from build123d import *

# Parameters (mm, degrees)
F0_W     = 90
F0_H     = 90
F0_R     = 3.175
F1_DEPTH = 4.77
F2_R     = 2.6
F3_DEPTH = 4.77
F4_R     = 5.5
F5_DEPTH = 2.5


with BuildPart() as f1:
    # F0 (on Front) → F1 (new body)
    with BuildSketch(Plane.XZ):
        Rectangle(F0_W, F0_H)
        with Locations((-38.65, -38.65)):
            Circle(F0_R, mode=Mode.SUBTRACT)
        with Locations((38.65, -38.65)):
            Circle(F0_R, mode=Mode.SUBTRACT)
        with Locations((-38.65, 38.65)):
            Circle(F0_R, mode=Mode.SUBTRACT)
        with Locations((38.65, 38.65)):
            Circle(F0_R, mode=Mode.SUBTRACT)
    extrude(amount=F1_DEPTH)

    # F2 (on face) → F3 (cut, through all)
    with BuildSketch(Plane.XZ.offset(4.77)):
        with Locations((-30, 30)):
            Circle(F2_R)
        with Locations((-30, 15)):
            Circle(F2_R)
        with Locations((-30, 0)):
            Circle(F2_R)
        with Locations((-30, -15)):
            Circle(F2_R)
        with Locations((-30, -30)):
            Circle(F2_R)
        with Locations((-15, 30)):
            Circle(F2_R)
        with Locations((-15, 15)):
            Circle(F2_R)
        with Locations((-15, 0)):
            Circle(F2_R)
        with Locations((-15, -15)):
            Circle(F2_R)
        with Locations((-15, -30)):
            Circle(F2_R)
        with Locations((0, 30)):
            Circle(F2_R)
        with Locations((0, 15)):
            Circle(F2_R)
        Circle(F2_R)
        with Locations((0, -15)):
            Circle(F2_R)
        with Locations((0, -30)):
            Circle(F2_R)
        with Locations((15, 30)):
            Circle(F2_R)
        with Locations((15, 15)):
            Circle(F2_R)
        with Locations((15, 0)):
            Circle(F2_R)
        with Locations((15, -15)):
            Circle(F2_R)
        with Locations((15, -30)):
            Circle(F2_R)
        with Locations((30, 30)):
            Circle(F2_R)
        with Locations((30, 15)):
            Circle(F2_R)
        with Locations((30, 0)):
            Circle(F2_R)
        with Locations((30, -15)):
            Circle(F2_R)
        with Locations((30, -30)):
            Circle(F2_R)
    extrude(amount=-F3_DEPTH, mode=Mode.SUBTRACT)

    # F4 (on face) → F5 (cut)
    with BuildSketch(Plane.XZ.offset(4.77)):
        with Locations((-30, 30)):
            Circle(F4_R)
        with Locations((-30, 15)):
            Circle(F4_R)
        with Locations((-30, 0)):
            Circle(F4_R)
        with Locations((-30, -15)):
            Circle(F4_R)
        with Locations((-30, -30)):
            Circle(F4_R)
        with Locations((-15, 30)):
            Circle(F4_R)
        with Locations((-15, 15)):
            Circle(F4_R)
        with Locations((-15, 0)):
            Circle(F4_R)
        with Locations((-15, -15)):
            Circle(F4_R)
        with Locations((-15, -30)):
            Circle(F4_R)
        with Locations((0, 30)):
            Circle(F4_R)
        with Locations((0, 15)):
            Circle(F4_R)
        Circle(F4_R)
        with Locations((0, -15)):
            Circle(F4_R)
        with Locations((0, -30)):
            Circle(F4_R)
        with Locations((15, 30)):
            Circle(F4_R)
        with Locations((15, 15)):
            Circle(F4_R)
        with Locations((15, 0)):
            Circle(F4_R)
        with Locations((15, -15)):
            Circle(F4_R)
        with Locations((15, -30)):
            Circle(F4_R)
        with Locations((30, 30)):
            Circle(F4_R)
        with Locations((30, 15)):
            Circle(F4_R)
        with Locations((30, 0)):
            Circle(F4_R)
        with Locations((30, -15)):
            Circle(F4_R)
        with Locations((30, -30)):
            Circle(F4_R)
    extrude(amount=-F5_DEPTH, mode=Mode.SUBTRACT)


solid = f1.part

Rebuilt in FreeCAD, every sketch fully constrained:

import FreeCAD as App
import Part
import Sketcher

V = App.Vector

doc = App.newDocument("Part")
params = doc.addObject("Spreadsheet::Sheet", "Params")
for row, (alias, value) in enumerate([
    ("sketch1_diameter", "6.35 mm"),
    ("sketch1_width", "90 mm"),
    ("pad1_length", "4.77 mm"),
    ("sketch2_diameter", "5.2 mm"),
    ("sketch3_diameter", "11 mm"),
    ("pocket2_length", "2.5 mm"),
], start=1):
    params.set(f"A{row}", alias)
    params.set(f"B{row}", "=" + value)
    params.setAlias(f"B{row}", alias)

body = doc.addObject("PartDesign::Body", "Body")

# Sketch on XZ plane
sketch1 = body.newObject("Sketcher::SketchObject", "Sketch")
sketch1.AttachmentSupport = (doc.getObject("XZ_Plane"), [""])
sketch1.MapMode = "FlatFace"
sketch1.addGeometry(Part.LineSegment(V(-45, 45, 0), V(-45, -45, 0)), False)
sketch1.addGeometry(Part.LineSegment(V(-45, -45, 0), V(45, -45, 0)), False)
sketch1.addGeometry(Part.LineSegment(V(45, -45, 0), V(45, 45, 0)), False)
sketch1.addGeometry(Part.LineSegment(V(45, 45, 0), V(-45, 45, 0)), False)
sketch1.addGeometry(Part.Circle(V(-38.6, -38.6, 0), V(0, 0, 1), 3.2), False)
sketch1.addGeometry(Part.Circle(V(38.6, -38.6, 0), V(0, 0, 1), 3.2), False)
sketch1.addGeometry(Part.Circle(V(-38.6, 38.6, 0), V(0, 0, 1), 3.2), False)
sketch1.addGeometry(Part.Circle(V(38.6, 38.6, 0), V(0, 0, 1), 3.2), False)
sketch1.addConstraint(Sketcher.Constraint("Coincident", 0, 2, 1, 1))
sketch1.addConstraint(Sketcher.Constraint("Coincident", 1, 2, 2, 1))
sketch1.addConstraint(Sketcher.Constraint("Coincident", 2, 2, 3, 1))
sketch1.addConstraint(Sketcher.Constraint("Coincident", 3, 2, 0, 1))
sketch1.addConstraint(Sketcher.Constraint("Vertical", 0))
sketch1.addConstraint(Sketcher.Constraint("Horizontal", 1))
sketch1.addConstraint(Sketcher.Constraint("Vertical", 2))
sketch1.addConstraint(Sketcher.Constraint("Horizontal", 3))
sketch1.addConstraint(Sketcher.Constraint("Equal", 4, 5))
sketch1.addConstraint(Sketcher.Constraint("Equal", 5, 6))
sketch1.addConstraint(Sketcher.Constraint("Equal", 6, 7))
sketch1.addConstraint(Sketcher.Constraint("Symmetric", 5, 3, 6, 3, -1, 1))
sketch1.addConstraint(Sketcher.Constraint("Symmetric", 4, 3, 7, 3, -1, 1))
sketch1.addConstraint(Sketcher.Constraint("Symmetric", 0, 2, 2, 2, -1, 1))
sketch1.addConstraint(Sketcher.Constraint("Symmetric", 4, 3, 5, 3, -2))
sketch1.addConstraint(Sketcher.Constraint("Equal", 3, 0))
sketch1.addConstraint(Sketcher.Constraint("Diameter", 4, 6.35))
sketch1.addConstraint(Sketcher.Constraint("DistanceX", 1, 1, 1, 2, 90.0))
sketch1.addConstraint(Sketcher.Constraint("DistanceX", 4, 3, 5, 3, 77.3))
sketch1.addConstraint(Sketcher.Constraint("DistanceY", 4, 3, 6, 3, 77.3))
sketch1.setExpression("Constraints[16]", "Params.sketch1_diameter")
sketch1.setExpression("Constraints[17]", "Params.sketch1_width")
pad1 = body.newObject("PartDesign::Pad", "Pad")
pad1.Profile = sketch1
pad1.setExpression("Length", "Params.pad1_length")

# Sketch on XZ plane
sketch2 = body.newObject("Sketcher::SketchObject", "Sketch001")
sketch2.AttachmentSupport = (doc.getObject("XZ_Plane"), [""])
sketch2.MapMode = "FlatFace"
sketch2.AttachmentOffset = App.Placement(V(0, 0, 4.77), App.Rotation())
sketch2.addGeometry(Part.Circle(V(-30, 30, 0), V(0, 0, 1), 2.6), False)
sketch2.addGeometry(Part.Circle(V(-30, 15, 0), V(0, 0, 1), 2.6), False)
sketch2.addGeometry(Part.Circle(V(-30, 0, 0), V(0, 0, 1), 2.6), False)
sketch2.addGeometry(Part.Circle(V(-30, -15, 0), V(0, 0, 1), 2.6), False)
sketch2.addGeometry(Part.Circle(V(-30, -30, 0), V(0, 0, 1), 2.6), False)
sketch2.addGeometry(Part.Circle(V(-15, 30, 0), V(0, 0, 1), 2.6), False)
sketch2.addGeometry(Part.Circle(V(-15, 15, 0), V(0, 0, 1), 2.6), False)
sketch2.addGeometry(Part.Circle(V(-15, 0, 0), V(0, 0, 1), 2.6), False)
sketch2.addGeometry(Part.Circle(V(-15, -15, 0), V(0, 0, 1), 2.6), False)
sketch2.addGeometry(Part.Circle(V(-15, -30, 0), V(0, 0, 1), 2.6), False)
sketch2.addGeometry(Part.Circle(V(0, 30, 0), V(0, 0, 1), 2.6), False)
sketch2.addGeometry(Part.Circle(V(0, 15, 0), V(0, 0, 1), 2.6), False)
sketch2.addGeometry(Part.Circle(V(0, 0, 0), V(0, 0, 1), 2.6), False)
sketch2.addGeometry(Part.Circle(V(0, -15, 0), V(0, 0, 1), 2.6), False)
sketch2.addGeometry(Part.Circle(V(0, -30, 0), V(0, 0, 1), 2.6), False)
sketch2.addGeometry(Part.Circle(V(15, 30, 0), V(0, 0, 1), 2.6), False)
sketch2.addGeometry(Part.Circle(V(15, 15, 0), V(0, 0, 1), 2.6), False)
sketch2.addGeometry(Part.Circle(V(15, 0, 0), V(0, 0, 1), 2.6), False)
sketch2.addGeometry(Part.Circle(V(15, -15, 0), V(0, 0, 1), 2.6), False)
sketch2.addGeometry(Part.Circle(V(15, -30, 0), V(0, 0, 1), 2.6), False)
sketch2.addGeometry(Part.Circle(V(30, 30, 0), V(0, 0, 1), 2.6), False)
sketch2.addGeometry(Part.Circle(V(30, 15, 0), V(0, 0, 1), 2.6), False)
sketch2.addGeometry(Part.Circle(V(30, 0, 0), V(0, 0, 1), 2.6), False)
sketch2.addGeometry(Part.Circle(V(30, -15, 0), V(0, 0, 1), 2.6), False)
sketch2.addGeometry(Part.Circle(V(30, -30, 0), V(0, 0, 1), 2.6), False)
sketch2.addConstraint(Sketcher.Constraint("Coincident", 12, 3, -1, 1))
sketch2.addConstraint(Sketcher.Constraint("Equal", 0, 1))
sketch2.addConstraint(Sketcher.Constraint("Equal", 1, 2))
sketch2.addConstraint(Sketcher.Constraint("Equal", 2, 3))
sketch2.addConstraint(Sketcher.Constraint("Equal", 3, 4))
sketch2.addConstraint(Sketcher.Constraint("Equal", 4, 5))
sketch2.addConstraint(Sketcher.Constraint("Equal", 5, 6))
sketch2.addConstraint(Sketcher.Constraint("Equal", 6, 7))
sketch2.addConstraint(Sketcher.Constraint("Equal", 7, 8))
sketch2.addConstraint(Sketcher.Constraint("Equal", 8, 9))
sketch2.addConstraint(Sketcher.Constraint("Equal", 9, 10))
sketch2.addConstraint(Sketcher.Constraint("Equal", 10, 11))
sketch2.addConstraint(Sketcher.Constraint("Equal", 11, 12))
sketch2.addConstraint(Sketcher.Constraint("Equal", 12, 13))
sketch2.addConstraint(Sketcher.Constraint("Equal", 13, 14))
sketch2.addConstraint(Sketcher.Constraint("Equal", 14, 15))
sketch2.addConstraint(Sketcher.Constraint("Equal", 15, 16))
sketch2.addConstraint(Sketcher.Constraint("Equal", 16, 17))
sketch2.addConstraint(Sketcher.Constraint("Equal", 17, 18))
sketch2.addConstraint(Sketcher.Constraint("Equal", 18, 19))
sketch2.addConstraint(Sketcher.Constraint("Equal", 19, 20))
sketch2.addConstraint(Sketcher.Constraint("Equal", 20, 21))
sketch2.addConstraint(Sketcher.Constraint("Equal", 21, 22))
sketch2.addConstraint(Sketcher.Constraint("Equal", 22, 23))
sketch2.addConstraint(Sketcher.Constraint("Equal", 23, 24))
sketch2.addConstraint(Sketcher.Constraint("Symmetric", 11, 3, 13, 3, -1, 1))
sketch2.addConstraint(Sketcher.Constraint("Symmetric", 10, 3, 14, 3, -1, 1))
sketch2.addConstraint(Sketcher.Constraint("Symmetric", 9, 3, 15, 3, -1, 1))
sketch2.addConstraint(Sketcher.Constraint("Symmetric", 8, 3, 16, 3, -1, 1))
sketch2.addConstraint(Sketcher.Constraint("Symmetric", 7, 3, 17, 3, -1, 1))
sketch2.addConstraint(Sketcher.Constraint("Symmetric", 6, 3, 18, 3, -1, 1))
sketch2.addConstraint(Sketcher.Constraint("Symmetric", 5, 3, 19, 3, -1, 1))
sketch2.addConstraint(Sketcher.Constraint("Symmetric", 4, 3, 20, 3, -1, 1))
sketch2.addConstraint(Sketcher.Constraint("Symmetric", 3, 3, 21, 3, -1, 1))
sketch2.addConstraint(Sketcher.Constraint("Symmetric", 2, 3, 22, 3, -1, 1))
sketch2.addConstraint(Sketcher.Constraint("Symmetric", 1, 3, 23, 3, -1, 1))
sketch2.addConstraint(Sketcher.Constraint("Symmetric", 0, 3, 24, 3, -1, 1))
sketch2.addConstraint(Sketcher.Constraint("Symmetric", 5, 3, 15, 3, -2))
sketch2.addConstraint(Sketcher.Constraint("Symmetric", 6, 3, 16, 3, -2))
sketch2.addConstraint(Sketcher.Constraint("Symmetric", 0, 3, 20, 3, -2))
sketch2.addConstraint(Sketcher.Constraint("Symmetric", 1, 3, 21, 3, -2))
sketch2.addConstraint(Sketcher.Constraint("PointOnObject", 2, 3, -1))
sketch2.addConstraint(Sketcher.Constraint("PointOnObject", 7, 3, -1))
sketch2.addConstraint(Sketcher.Constraint("PointOnObject", 10, 3, -2))
sketch2.addConstraint(Sketcher.Constraint("PointOnObject", 11, 3, -2))
sketch2.addConstraint(Sketcher.Constraint("Horizontal", 0, 3, 5, 3))
sketch2.addConstraint(Sketcher.Constraint("Horizontal", 1, 3, 6, 3))
sketch2.addConstraint(Sketcher.Constraint("Horizontal", 5, 3, 10, 3))
sketch2.addConstraint(Sketcher.Constraint("Horizontal", 6, 3, 11, 3))
sketch2.addConstraint(Sketcher.Constraint("Vertical", 0, 3, 1, 3))
sketch2.addConstraint(Sketcher.Constraint("Vertical", 1, 3, 2, 3))
sketch2.addConstraint(Sketcher.Constraint("Vertical", 5, 3, 6, 3))
sketch2.addConstraint(Sketcher.Constraint("Vertical", 6, 3, 7, 3))
sketch2.addConstraint(Sketcher.Constraint("Diameter", 0, 5.2))
sketch2.addConstraint(Sketcher.Constraint("DistanceX", 0, 3, -1, 1, 30.0))
sketch2.addConstraint(Sketcher.Constraint("DistanceY", -1, 1, 0, 3, 30.0))
sketch2.addConstraint(Sketcher.Constraint("DistanceY", -1, 1, 1, 3, 15.0))
sketch2.addConstraint(Sketcher.Constraint("DistanceX", 5, 3, -1, 1, 15.0))
sketch2.setExpression("Constraints[53]", "Params.sketch2_diameter")
pocket1 = body.newObject("PartDesign::Pocket", "Pocket")
pocket1.Profile = sketch2
pocket1.Type = "ThroughAll"

# Sketch on XZ plane
sketch3 = body.newObject("Sketcher::SketchObject", "Sketch002")
sketch3.AttachmentSupport = (doc.getObject("XZ_Plane"), [""])
sketch3.MapMode = "FlatFace"
sketch3.AttachmentOffset = App.Placement(V(0, 0, 4.77), App.Rotation())
sketch3.addGeometry(Part.Circle(V(-30, 30, 0), V(0, 0, 1), 6), False)
sketch3.addGeometry(Part.Circle(V(-30, 15, 0), V(0, 0, 1), 6), False)
sketch3.addGeometry(Part.Circle(V(-30, 0, 0), V(0, 0, 1), 6), False)
sketch3.addGeometry(Part.Circle(V(-30, -15, 0), V(0, 0, 1), 6), False)
sketch3.addGeometry(Part.Circle(V(-30, -30, 0), V(0, 0, 1), 6), False)
sketch3.addGeometry(Part.Circle(V(-15, 30, 0), V(0, 0, 1), 6), False)
sketch3.addGeometry(Part.Circle(V(-15, 15, 0), V(0, 0, 1), 6), False)
sketch3.addGeometry(Part.Circle(V(-15, 0, 0), V(0, 0, 1), 6), False)
sketch3.addGeometry(Part.Circle(V(-15, -15, 0), V(0, 0, 1), 6), False)
sketch3.addGeometry(Part.Circle(V(-15, -30, 0), V(0, 0, 1), 6), False)
sketch3.addGeometry(Part.Circle(V(0, 30, 0), V(0, 0, 1), 6), False)
sketch3.addGeometry(Part.Circle(V(0, 15, 0), V(0, 0, 1), 6), False)
sketch3.addGeometry(Part.Circle(V(0, 0, 0), V(0, 0, 1), 6), False)
sketch3.addGeometry(Part.Circle(V(0, -15, 0), V(0, 0, 1), 6), False)
sketch3.addGeometry(Part.Circle(V(0, -30, 0), V(0, 0, 1), 6), False)
sketch3.addGeometry(Part.Circle(V(15, 30, 0), V(0, 0, 1), 6), False)
sketch3.addGeometry(Part.Circle(V(15, 15, 0), V(0, 0, 1), 6), False)
sketch3.addGeometry(Part.Circle(V(15, 0, 0), V(0, 0, 1), 6), False)
sketch3.addGeometry(Part.Circle(V(15, -15, 0), V(0, 0, 1), 6), False)
sketch3.addGeometry(Part.Circle(V(15, -30, 0), V(0, 0, 1), 6), False)
sketch3.addGeometry(Part.Circle(V(30, 30, 0), V(0, 0, 1), 6), False)
sketch3.addGeometry(Part.Circle(V(30, 15, 0), V(0, 0, 1), 6), False)
sketch3.addGeometry(Part.Circle(V(30, 0, 0), V(0, 0, 1), 6), False)
sketch3.addGeometry(Part.Circle(V(30, -15, 0), V(0, 0, 1), 6), False)
sketch3.addGeometry(Part.Circle(V(30, -30, 0), V(0, 0, 1), 6), False)
sketch3.addConstraint(Sketcher.Constraint("Coincident", 12, 3, -1, 1))
sketch3.addConstraint(Sketcher.Constraint("Equal", 0, 1))
sketch3.addConstraint(Sketcher.Constraint("Equal", 1, 2))
sketch3.addConstraint(Sketcher.Constraint("Equal", 2, 3))
sketch3.addConstraint(Sketcher.Constraint("Equal", 3, 4))
sketch3.addConstraint(Sketcher.Constraint("Equal", 4, 5))
sketch3.addConstraint(Sketcher.Constraint("Equal", 5, 6))
sketch3.addConstraint(Sketcher.Constraint("Equal", 6, 7))
sketch3.addConstraint(Sketcher.Constraint("Equal", 7, 8))
sketch3.addConstraint(Sketcher.Constraint("Equal", 8, 9))
sketch3.addConstraint(Sketcher.Constraint("Equal", 9, 10))
sketch3.addConstraint(Sketcher.Constraint("Equal", 10, 11))
sketch3.addConstraint(Sketcher.Constraint("Equal", 11, 12))
sketch3.addConstraint(Sketcher.Constraint("Equal", 12, 13))
sketch3.addConstraint(Sketcher.Constraint("Equal", 13, 14))
sketch3.addConstraint(Sketcher.Constraint("Equal", 14, 15))
sketch3.addConstraint(Sketcher.Constraint("Equal", 15, 16))
sketch3.addConstraint(Sketcher.Constraint("Equal", 16, 17))
sketch3.addConstraint(Sketcher.Constraint("Equal", 17, 18))
sketch3.addConstraint(Sketcher.Constraint("Equal", 18, 19))
sketch3.addConstraint(Sketcher.Constraint("Equal", 19, 20))
sketch3.addConstraint(Sketcher.Constraint("Equal", 20, 21))
sketch3.addConstraint(Sketcher.Constraint("Equal", 21, 22))
sketch3.addConstraint(Sketcher.Constraint("Equal", 22, 23))
sketch3.addConstraint(Sketcher.Constraint("Equal", 23, 24))
sketch3.addConstraint(Sketcher.Constraint("Symmetric", 11, 3, 13, 3, -1, 1))
sketch3.addConstraint(Sketcher.Constraint("Symmetric", 10, 3, 14, 3, -1, 1))
sketch3.addConstraint(Sketcher.Constraint("Symmetric", 9, 3, 15, 3, -1, 1))
sketch3.addConstraint(Sketcher.Constraint("Symmetric", 8, 3, 16, 3, -1, 1))
sketch3.addConstraint(Sketcher.Constraint("Symmetric", 7, 3, 17, 3, -1, 1))
sketch3.addConstraint(Sketcher.Constraint("Symmetric", 6, 3, 18, 3, -1, 1))
sketch3.addConstraint(Sketcher.Constraint("Symmetric", 5, 3, 19, 3, -1, 1))
sketch3.addConstraint(Sketcher.Constraint("Symmetric", 4, 3, 20, 3, -1, 1))
sketch3.addConstraint(Sketcher.Constraint("Symmetric", 3, 3, 21, 3, -1, 1))
sketch3.addConstraint(Sketcher.Constraint("Symmetric", 2, 3, 22, 3, -1, 1))
sketch3.addConstraint(Sketcher.Constraint("Symmetric", 1, 3, 23, 3, -1, 1))
sketch3.addConstraint(Sketcher.Constraint("Symmetric", 0, 3, 24, 3, -1, 1))
sketch3.addConstraint(Sketcher.Constraint("Symmetric", 5, 3, 15, 3, -2))
sketch3.addConstraint(Sketcher.Constraint("Symmetric", 6, 3, 16, 3, -2))
sketch3.addConstraint(Sketcher.Constraint("Symmetric", 0, 3, 20, 3, -2))
sketch3.addConstraint(Sketcher.Constraint("Symmetric", 1, 3, 21, 3, -2))
sketch3.addConstraint(Sketcher.Constraint("PointOnObject", 2, 3, -1))
sketch3.addConstraint(Sketcher.Constraint("PointOnObject", 7, 3, -1))
sketch3.addConstraint(Sketcher.Constraint("PointOnObject", 10, 3, -2))
sketch3.addConstraint(Sketcher.Constraint("PointOnObject", 11, 3, -2))
sketch3.addConstraint(Sketcher.Constraint("Horizontal", 0, 3, 5, 3))
sketch3.addConstraint(Sketcher.Constraint("Horizontal", 1, 3, 6, 3))
sketch3.addConstraint(Sketcher.Constraint("Horizontal", 5, 3, 10, 3))
sketch3.addConstraint(Sketcher.Constraint("Horizontal", 6, 3, 11, 3))
sketch3.addConstraint(Sketcher.Constraint("Vertical", 0, 3, 1, 3))
sketch3.addConstraint(Sketcher.Constraint("Vertical", 1, 3, 2, 3))
sketch3.addConstraint(Sketcher.Constraint("Vertical", 5, 3, 6, 3))
sketch3.addConstraint(Sketcher.Constraint("Vertical", 6, 3, 7, 3))
sketch3.addConstraint(Sketcher.Constraint("Diameter", 0, 11.0))
sketch3.addConstraint(Sketcher.Constraint("DistanceX", 0, 3, -1, 1, 30.0))
sketch3.addConstraint(Sketcher.Constraint("DistanceY", -1, 1, 0, 3, 30.0))
sketch3.addConstraint(Sketcher.Constraint("DistanceY", -1, 1, 1, 3, 15.0))
sketch3.addConstraint(Sketcher.Constraint("DistanceX", 5, 3, -1, 1, 15.0))
sketch3.setExpression("Constraints[53]", "Params.sketch3_diameter")
pocket2 = body.newObject("PartDesign::Pocket", "Pocket001")
pocket2.Profile = sketch3
pocket2.setExpression("Length", "Params.pocket2_length")

doc.recompute()
